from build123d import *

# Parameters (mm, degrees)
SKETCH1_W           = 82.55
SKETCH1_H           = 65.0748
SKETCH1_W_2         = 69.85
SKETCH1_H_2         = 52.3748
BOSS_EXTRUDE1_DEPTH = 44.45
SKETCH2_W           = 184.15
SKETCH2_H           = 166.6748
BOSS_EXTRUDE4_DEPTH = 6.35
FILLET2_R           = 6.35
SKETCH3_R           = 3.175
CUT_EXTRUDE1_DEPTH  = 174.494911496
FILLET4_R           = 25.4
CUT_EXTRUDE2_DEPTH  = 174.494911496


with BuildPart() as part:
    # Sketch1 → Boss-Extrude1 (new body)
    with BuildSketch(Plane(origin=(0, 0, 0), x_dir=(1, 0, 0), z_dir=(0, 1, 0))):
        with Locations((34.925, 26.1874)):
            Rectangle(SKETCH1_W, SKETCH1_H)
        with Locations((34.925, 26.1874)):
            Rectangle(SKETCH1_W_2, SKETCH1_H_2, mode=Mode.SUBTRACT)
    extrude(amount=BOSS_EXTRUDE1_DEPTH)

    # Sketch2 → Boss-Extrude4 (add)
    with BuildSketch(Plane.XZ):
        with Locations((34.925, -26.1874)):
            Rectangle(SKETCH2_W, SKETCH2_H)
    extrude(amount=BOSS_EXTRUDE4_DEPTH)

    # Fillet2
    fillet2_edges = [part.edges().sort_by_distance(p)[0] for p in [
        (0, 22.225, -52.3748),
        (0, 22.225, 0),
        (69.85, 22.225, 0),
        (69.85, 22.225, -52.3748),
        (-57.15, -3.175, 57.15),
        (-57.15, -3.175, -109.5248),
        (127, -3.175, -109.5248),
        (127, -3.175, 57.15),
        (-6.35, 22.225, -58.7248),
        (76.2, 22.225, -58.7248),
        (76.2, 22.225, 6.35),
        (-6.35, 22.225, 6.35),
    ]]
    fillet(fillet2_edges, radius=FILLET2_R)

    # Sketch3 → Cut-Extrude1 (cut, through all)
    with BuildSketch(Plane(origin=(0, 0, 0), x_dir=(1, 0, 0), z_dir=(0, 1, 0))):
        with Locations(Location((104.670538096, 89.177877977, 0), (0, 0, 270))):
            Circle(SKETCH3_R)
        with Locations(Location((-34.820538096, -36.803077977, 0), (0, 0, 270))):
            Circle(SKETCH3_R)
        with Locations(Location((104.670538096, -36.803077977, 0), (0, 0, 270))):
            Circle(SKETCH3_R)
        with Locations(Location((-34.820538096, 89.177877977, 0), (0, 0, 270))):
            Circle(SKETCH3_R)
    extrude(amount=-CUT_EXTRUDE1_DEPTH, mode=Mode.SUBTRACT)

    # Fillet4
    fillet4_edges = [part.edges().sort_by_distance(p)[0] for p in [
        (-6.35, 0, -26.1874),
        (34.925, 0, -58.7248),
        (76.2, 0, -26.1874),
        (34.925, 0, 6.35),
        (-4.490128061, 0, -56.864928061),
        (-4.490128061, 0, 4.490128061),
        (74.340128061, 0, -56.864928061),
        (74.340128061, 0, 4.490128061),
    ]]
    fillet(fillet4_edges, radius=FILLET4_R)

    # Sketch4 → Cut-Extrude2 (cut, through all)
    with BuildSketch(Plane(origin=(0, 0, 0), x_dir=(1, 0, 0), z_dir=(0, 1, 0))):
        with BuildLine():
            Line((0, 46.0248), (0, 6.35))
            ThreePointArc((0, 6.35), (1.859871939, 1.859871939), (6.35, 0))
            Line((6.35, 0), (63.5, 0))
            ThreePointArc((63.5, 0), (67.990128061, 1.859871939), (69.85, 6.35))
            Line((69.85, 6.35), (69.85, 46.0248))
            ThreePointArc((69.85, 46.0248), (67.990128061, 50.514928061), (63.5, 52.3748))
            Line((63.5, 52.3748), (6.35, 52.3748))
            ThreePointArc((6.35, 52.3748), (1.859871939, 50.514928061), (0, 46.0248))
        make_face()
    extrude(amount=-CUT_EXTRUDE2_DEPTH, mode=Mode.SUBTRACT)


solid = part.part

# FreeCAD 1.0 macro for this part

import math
import FreeCAD as App
import Part
import Sketcher
from FreeCAD import Vector
Q = App.Units.Quantity


def edges_at(feature, points):
    """Names of the edges that pass closest to the given points."""
    edges = feature.Shape.Edges
    near = lambda p: min(range(len(edges)), key=lambda i: edges[i].distToShape(Part.Vertex(*p))[0])
    return sorted({f"Edge{near(p) + 1}" for p in points})

doc = App.newDocument("Part")
params = doc.addObject("Spreadsheet::Sheet", "Params")
for row, (alias, value) in enumerate([
    ("sketch1_width", "3.25 in"),
    ("sketch1_height", "2.562 in"),
    ("sketch1_height2", "2.062 in"),
    ("pad1_length", "1.75 in"),
    ("sketch2_width", "7.25 in"),
    ("sketch2_height", "6.562 in"),
    ("pad2_length", "0.25 in"),
    ("fillet_radius", "0.25 in"),
    ("sketch3_diameter", "0.25 in"),
    ("fillet2_radius", "1 in"),
    ("sketch4_radius", "0.25 in"),
    ("sketch4_width", "2.25 in"),
    ("sketch4_height", "1.562 in"),
], start=1):
    params.set(f"A{row}", alias)
    params.set(f"B{row}", "=" + value)
    params.setAlias(f"B{row}", alias)

body = doc.addObject("PartDesign::Body", "Body")

sketch1 = body.newObject("Sketcher::SketchObject", "Sketch")
sketch1.AttachmentSupport = (doc.getObject("XZ_Plane"), [""])
sketch1.MapMode = "FlatFace"
sketch1.addGeometry([
    Part.LineSegment(Vector(-6, -59, 0), Vector(-6, 6, 0)),
    Part.LineSegment(Vector(-6, 6, 0), Vector(76, 6, 0)),
    Part.LineSegment(Vector(76, 6, 0), Vector(76, -59, 0)),
    Part.LineSegment(Vector(76, -59, 0), Vector(-6, -59, 0)),
    Part.LineSegment(Vector(70, 0, 0), Vector(0, 0, 0)),
    Part.LineSegment(Vector(0, 0, 0), Vector(0, -52, 0)),
    Part.LineSegment(Vector(0, -52, 0), Vector(70, -52, 0)),
    Part.LineSegment(Vector(70, -52, 0), Vector(70, 0, 0)),
], False)
sketch1.addConstraint([
    Sketcher.Constraint("Coincident", 0, 2, 1, 1),
    Sketcher.Constraint("Coincident", 1, 2, 2, 1),
    Sketcher.Constraint("Coincident", 2, 2, 3, 1),
    Sketcher.Constraint("Coincident", 3, 2, 0, 1),
    Sketcher.Constraint("Coincident", 4, 2, 5, 1),
    Sketcher.Constraint("Coincident", 5, 2, 6, 1),
    Sketcher.Constraint("Coincident", 6, 2, 7, 1),
    Sketcher.Constraint("Coincident", 7, 2, 4, 1),
    Sketcher.Constraint("Vertical", 0),
    Sketcher.Constraint("Horizontal", 1),
    Sketcher.Constraint("Vertical", 2),
    Sketcher.Constraint("Horizontal", 3),
    Sketcher.Constraint("Horizontal", 4),
    Sketcher.Constraint("Vertical", 5),
    Sketcher.Constraint("Horizontal", 6),
    Sketcher.Constraint("Vertical", 7),
    Sketcher.Constraint("Coincident", 4, 2, -1, 1),
    Sketcher.Constraint("DistanceX", -1, 1, 1, 2, Q("3 in")),
    Sketcher.Constraint("DistanceX", 3, 2, 6, 2, Q("3 in")),
    Sketcher.Constraint("DistanceX", 1, 1, 1, 2, Q("3.25 in")),
    Sketcher.Constraint("DistanceY", 0, 1, 0, 2, Q("2.562 in")),
    Sketcher.Constraint("DistanceY", 5, 2, 5, 1, Q("2.062 in")),
    Sketcher.Constraint("DistanceY", -1, 1, 0, 2, Q("0.25 in")),
])
sketch1.setExpression("Constraints[19]", "Params.sketch1_width")
sketch1.setExpression("Constraints[20]", "Params.sketch1_height")
sketch1.setExpression("Constraints[21]", "Params.sketch1_height2")
pad1 = body.newObject("PartDesign::Pad", "Pad")
pad1.Profile = sketch1
pad1.setExpression("Length", "Params.pad1_length")
pad1.Reversed = True

sketch2 = body.newObject("Sketcher::SketchObject", "Sketch001")
sketch2.AttachmentSupport = (doc.getObject("XZ_Plane"), [""])
sketch2.MapMode = "FlatFace"
sketch2.addGeometry([
    Part.LineSegment(Vector(-57, 57, 0), Vector(-57, -110, 0)),
    Part.LineSegment(Vector(-57, -110, 0), Vector(127, -110, 0)),
    Part.LineSegment(Vector(127, -110, 0), Vector(127, 57, 0)),
    Part.LineSegment(Vector(127, 57, 0), Vector(-57, 57, 0)),
], False)
sketch2.addConstraint([
    Sketcher.Constraint("Coincident", 0, 2, 1, 1),
    Sketcher.Constraint("Coincident", 1, 2, 2, 1),
    Sketcher.Constraint("Coincident", 2, 2, 3, 1),
    Sketcher.Constraint("Coincident", 3, 2, 0, 1),
    Sketcher.Constraint("Vertical", 0),
    Sketcher.Constraint("Horizontal", 1),
    Sketcher.Constraint("Vertical", 2),
    Sketcher.Constraint("Horizontal", 3),
    Sketcher.Constraint("DistanceX", -1, 1, 1, 2, Q("5 in")),
    Sketcher.Constraint("DistanceX", 1, 1, 1, 2, Q("7.25 in")),
    Sketcher.Constraint("DistanceY", 0, 2, 0, 1, Q("6.562 in")),
    Sketcher.Constraint("DistanceY", -1, 1, 2, 2, Q("2.25 in")),
])
sketch2.setExpression("Constraints[9]", "Params.sketch2_width")
sketch2.setExpression("Constraints[10]", "Params.sketch2_height")
pad2 = body.newObject("PartDesign::Pad", "Pad001")
pad2.Profile = sketch2
pad2.setExpression("Length", "Params.pad2_length")
doc.recompute()

fillet = body.newObject("PartDesign::Fillet", "Fillet")
fillet.Base = (pad2, edges_at(pad2, [
    (0, 22.225, -52.375),
    (0, 22.225, 0),
    (69.85, 22.225, 0),
    (69.85, 22.225, -52.375),
    (-57.15, -3.175, 57.15),
    (-57.15, -3.175, -109.525),
    (127, -3.175, -109.525),
    (127, -3.175, 57.15),
    (-6.35, 22.225, -58.725),
    (76.2, 22.225, -58.725),
    (76.2, 22.225, 6.35),
    (-6.35, 22.225, 6.35),
]))
fillet.setExpression("Radius", "Params.fillet_radius")

sketch3 = body.newObject("Sketcher::SketchObject", "Sketch002")
sketch3.AttachmentSupport = (doc.getObject("XZ_Plane"), [""])
sketch3.MapMode = "FlatFace"
sketch3.addGeometry([
    Part.Circle(Vector(104.7, -89.2, 0), Vector(0, 0, 1), 3.2),
    Part.Circle(Vector(-34.8, 36.8, 0), Vector(0, 0, 1), 3.2),
    Part.Circle(Vector(104.7, 36.8, 0), Vector(0, 0, 1), 3.2),
    Part.Circle(Vector(-34.8, -89.2, 0), Vector(0, 0, 1), 3.2),
], False)
sketch3.addConstraint([
    Sketcher.Constraint("Equal", 0, 1),
    Sketcher.Constraint("Equal", 1, 2),
    Sketcher.Constraint("Equal", 2, 3),
    Sketcher.Constraint("Horizontal", 1, 3, 2, 3),
    Sketcher.Constraint("Horizontal", 0, 3, 3, 3),
    Sketcher.Constraint("Vertical", 0, 3, 2, 3),
    Sketcher.Constraint("Vertical", 1, 3, 3, 3),
    Sketcher.Constraint("Diameter", 0, Q("0.25 in")),
    Sketcher.Constraint("DistanceX", -1, 1, 0, 3, Q("104.670538 mm")),
    Sketcher.Constraint("DistanceX", 1, 3, -1, 1, Q("34.820538 mm")),
    Sketcher.Constraint("DistanceY", 0, 3, -1, 1, Q("89.177878 mm")),
    Sketcher.Constraint("DistanceY", -1, 1, 1, 3, Q("36.803078 mm")),
])
sketch3.setExpression("Constraints[7]", "Params.sketch3_diameter")
pocket1 = body.newObject("PartDesign::Pocket", "Pocket")
pocket1.Profile = sketch3
pocket1.Type = "ThroughAll"
pocket1.Reversed = True
doc.recompute()

fillet2 = body.newObject("PartDesign::Fillet", "Fillet001")
fillet2.Base = (pocket1, edges_at(pocket1, [
    (-6.35, 0, -26.187),
    (34.925, 0, -58.725),
    (76.2, 0, -26.187),
    (34.925, 0, 6.35),
    (-4.49, 0, -56.865),
    (-4.49, 0, 4.49),
    (74.34, 0, -56.865),
    (74.34, 0, 4.49),
]))
fillet2.setExpression("Radius", "Params.fillet2_radius")

sketch4 = body.newObject("Sketcher::SketchObject", "Sketch003")
sketch4.AttachmentSupport = (doc.getObject("XZ_Plane"), [""])
sketch4.MapMode = "FlatFace"
sketch4.addGeometry([
    Part.LineSegment(Vector(0, -46, 0), Vector(0, -6, 0)),
    Part.ArcOfCircle(Part.Circle(Vector(6, -6, 0), Vector(0, 0, 1), 6), math.radians(90), math.radians(180)),
    Part.LineSegment(Vector(6, 0, 0), Vector(64, 0, 0)),
    Part.ArcOfCircle(Part.Circle(Vector(64, -6, 0), Vector(0, 0, 1), 6), math.radians(0), math.radians(90)),
    Part.LineSegment(Vector(70, -6, 0), Vector(70, -46, 0)),
    Part.ArcOfCircle(Part.Circle(Vector(64, -46, 0), Vector(0, 0, 1), 6), math.radians(-90), math.radians(0)),
    Part.LineSegment(Vector(64, -52, 0), Vector(6, -52, 0)),
    Part.ArcOfCircle(Part.Circle(Vector(6, -46, 0), Vector(0, 0, 1), 6), math.radians(180), math.radians(270)),
], False)
sketch4.addConstraint([
    Sketcher.Constraint("Tangent", 0, 2, 1, 2),
    Sketcher.Constraint("Tangent", 1, 1, 2, 1),
    Sketcher.Constraint("Tangent", 2, 2, 3, 2),
    Sketcher.Constraint("Tangent", 3, 1, 4, 1),
    Sketcher.Constraint("Tangent", 4, 2, 5, 2),
    Sketcher.Constraint("Tangent", 5, 1, 6, 1),
    Sketcher.Constraint("Tangent", 6, 2, 7, 2),
    Sketcher.Constraint("Tangent", 7, 1, 0, 1),
    Sketcher.Constraint("Vertical", 0),
    Sketcher.Constraint("Horizontal", 2),
    Sketcher.Constraint("Vertical", 4),
    Sketcher.Constraint("Horizontal", 6),
    Sketcher.Constraint("Equal", 1, 3),
    Sketcher.Constraint("Equal", 3, 5),
    Sketcher.Constraint("Equal", 5, 7),
    Sketcher.Constraint("PointOnObject", 0, 2, -2),
    Sketcher.Constraint("PointOnObject", 1, 1, -1),
    Sketcher.Constraint("Radius", 1, Q("0.25 in")),
    Sketcher.Constraint("DistanceX", 2, 1, 2, 2, Q("2.25 in")),
    Sketcher.Constraint("DistanceY", 0, 1, 0, 2, Q("1.562 in")),
])
sketch4.setExpression("Constraints[17]", "Params.sketch4_radius")
sketch4.setExpression("Constraints[18]", "Params.sketch4_width")
sketch4.setExpression("Constraints[19]", "Params.sketch4_height")
pocket2 = body.newObject("PartDesign::Pocket", "Pocket001")
pocket2.Profile = sketch4
pocket2.Type = "ThroughAll"
pocket2.Reversed = True

doc.recompute()
